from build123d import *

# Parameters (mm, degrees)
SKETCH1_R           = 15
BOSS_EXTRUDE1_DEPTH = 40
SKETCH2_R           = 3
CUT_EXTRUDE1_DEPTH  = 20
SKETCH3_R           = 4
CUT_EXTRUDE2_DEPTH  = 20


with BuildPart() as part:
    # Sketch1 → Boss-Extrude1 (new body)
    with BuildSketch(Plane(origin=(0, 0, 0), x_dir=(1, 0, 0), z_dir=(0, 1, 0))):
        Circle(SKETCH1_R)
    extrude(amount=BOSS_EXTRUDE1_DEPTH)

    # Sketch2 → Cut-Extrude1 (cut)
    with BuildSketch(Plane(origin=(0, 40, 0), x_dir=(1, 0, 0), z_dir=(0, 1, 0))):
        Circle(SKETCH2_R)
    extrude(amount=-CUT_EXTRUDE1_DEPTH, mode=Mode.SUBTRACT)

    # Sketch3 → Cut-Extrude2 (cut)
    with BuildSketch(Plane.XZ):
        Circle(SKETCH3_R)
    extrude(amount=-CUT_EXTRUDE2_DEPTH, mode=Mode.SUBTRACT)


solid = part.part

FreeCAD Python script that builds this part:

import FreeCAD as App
import Part
import Sketcher
Q = App.Units.Quantity

doc = App.newDocument("Part")
body = doc.addObject("PartDesign::Body", "Body")

sketch1 = body.newObject("Sketcher::SketchObject", "Sketch")
sketch1.AttachmentSupport = (doc.getObject("XZ_Plane"), [""])
sketch1.MapMode = "FlatFace"
sketch1.addGeometry(Part.Circle(App.Vector(0, 0, 0), App.Vector(0, 0, 1), 15), False)
sketch1.addConstraint([
    Sketcher.Constraint("Coincident", 0, 3, -1, 1),
    Sketcher.Constraint("Diameter", 0, Q("30 mm")),
])
pad1 = body.newObject("PartDesign::Pad", "Pad")
pad1.Profile = sketch1
pad1.Length = 40
pad1.Reversed = True

sketch2 = body.newObject("Sketcher::SketchObject", "Sketch001")
sketch2.AttachmentSupport = (doc.getObject("XZ_Plane"), [""])
sketch2.MapMode = "FlatFace"
sketch2.AttachmentOffset = App.Placement(App.Vector(0, 0, -40), App.Rotation())
sketch2.addGeometry(Part.Circle(App.Vector(0, 0, 0), App.Vector(0, 0, 1), 3), False)
sketch2.addConstraint([
    Sketcher.Constraint("Coincident", 0, 3, -1, 1),
    Sketcher.Constraint("Diameter", 0, Q("6 mm")),
])
pocket1 = body.newObject("PartDesign::Pocket", "Pocket")
pocket1.Profile = sketch2
pocket1.Length = 20
pocket1.Reversed = True

sketch3 = body.newObject("Sketcher::SketchObject", "Sketch002")
sketch3.AttachmentSupport = (doc.getObject("XZ_Plane"), [""])
sketch3.MapMode = "FlatFace"
sketch3.addGeometry(Part.Circle(App.Vector(0, 0, 0), App.Vector(0, 0, 1), 4), False)
sketch3.addConstraint([
    Sketcher.Constraint("Coincident", 0, 3, -1, 1),
    Sketcher.Constraint("Diameter", 0, Q("8 mm")),
])
pocket2 = body.newObject("PartDesign::Pocket", "Pocket001")
pocket2.Profile = sketch3
pocket2.Length = 20

doc.recompute()
